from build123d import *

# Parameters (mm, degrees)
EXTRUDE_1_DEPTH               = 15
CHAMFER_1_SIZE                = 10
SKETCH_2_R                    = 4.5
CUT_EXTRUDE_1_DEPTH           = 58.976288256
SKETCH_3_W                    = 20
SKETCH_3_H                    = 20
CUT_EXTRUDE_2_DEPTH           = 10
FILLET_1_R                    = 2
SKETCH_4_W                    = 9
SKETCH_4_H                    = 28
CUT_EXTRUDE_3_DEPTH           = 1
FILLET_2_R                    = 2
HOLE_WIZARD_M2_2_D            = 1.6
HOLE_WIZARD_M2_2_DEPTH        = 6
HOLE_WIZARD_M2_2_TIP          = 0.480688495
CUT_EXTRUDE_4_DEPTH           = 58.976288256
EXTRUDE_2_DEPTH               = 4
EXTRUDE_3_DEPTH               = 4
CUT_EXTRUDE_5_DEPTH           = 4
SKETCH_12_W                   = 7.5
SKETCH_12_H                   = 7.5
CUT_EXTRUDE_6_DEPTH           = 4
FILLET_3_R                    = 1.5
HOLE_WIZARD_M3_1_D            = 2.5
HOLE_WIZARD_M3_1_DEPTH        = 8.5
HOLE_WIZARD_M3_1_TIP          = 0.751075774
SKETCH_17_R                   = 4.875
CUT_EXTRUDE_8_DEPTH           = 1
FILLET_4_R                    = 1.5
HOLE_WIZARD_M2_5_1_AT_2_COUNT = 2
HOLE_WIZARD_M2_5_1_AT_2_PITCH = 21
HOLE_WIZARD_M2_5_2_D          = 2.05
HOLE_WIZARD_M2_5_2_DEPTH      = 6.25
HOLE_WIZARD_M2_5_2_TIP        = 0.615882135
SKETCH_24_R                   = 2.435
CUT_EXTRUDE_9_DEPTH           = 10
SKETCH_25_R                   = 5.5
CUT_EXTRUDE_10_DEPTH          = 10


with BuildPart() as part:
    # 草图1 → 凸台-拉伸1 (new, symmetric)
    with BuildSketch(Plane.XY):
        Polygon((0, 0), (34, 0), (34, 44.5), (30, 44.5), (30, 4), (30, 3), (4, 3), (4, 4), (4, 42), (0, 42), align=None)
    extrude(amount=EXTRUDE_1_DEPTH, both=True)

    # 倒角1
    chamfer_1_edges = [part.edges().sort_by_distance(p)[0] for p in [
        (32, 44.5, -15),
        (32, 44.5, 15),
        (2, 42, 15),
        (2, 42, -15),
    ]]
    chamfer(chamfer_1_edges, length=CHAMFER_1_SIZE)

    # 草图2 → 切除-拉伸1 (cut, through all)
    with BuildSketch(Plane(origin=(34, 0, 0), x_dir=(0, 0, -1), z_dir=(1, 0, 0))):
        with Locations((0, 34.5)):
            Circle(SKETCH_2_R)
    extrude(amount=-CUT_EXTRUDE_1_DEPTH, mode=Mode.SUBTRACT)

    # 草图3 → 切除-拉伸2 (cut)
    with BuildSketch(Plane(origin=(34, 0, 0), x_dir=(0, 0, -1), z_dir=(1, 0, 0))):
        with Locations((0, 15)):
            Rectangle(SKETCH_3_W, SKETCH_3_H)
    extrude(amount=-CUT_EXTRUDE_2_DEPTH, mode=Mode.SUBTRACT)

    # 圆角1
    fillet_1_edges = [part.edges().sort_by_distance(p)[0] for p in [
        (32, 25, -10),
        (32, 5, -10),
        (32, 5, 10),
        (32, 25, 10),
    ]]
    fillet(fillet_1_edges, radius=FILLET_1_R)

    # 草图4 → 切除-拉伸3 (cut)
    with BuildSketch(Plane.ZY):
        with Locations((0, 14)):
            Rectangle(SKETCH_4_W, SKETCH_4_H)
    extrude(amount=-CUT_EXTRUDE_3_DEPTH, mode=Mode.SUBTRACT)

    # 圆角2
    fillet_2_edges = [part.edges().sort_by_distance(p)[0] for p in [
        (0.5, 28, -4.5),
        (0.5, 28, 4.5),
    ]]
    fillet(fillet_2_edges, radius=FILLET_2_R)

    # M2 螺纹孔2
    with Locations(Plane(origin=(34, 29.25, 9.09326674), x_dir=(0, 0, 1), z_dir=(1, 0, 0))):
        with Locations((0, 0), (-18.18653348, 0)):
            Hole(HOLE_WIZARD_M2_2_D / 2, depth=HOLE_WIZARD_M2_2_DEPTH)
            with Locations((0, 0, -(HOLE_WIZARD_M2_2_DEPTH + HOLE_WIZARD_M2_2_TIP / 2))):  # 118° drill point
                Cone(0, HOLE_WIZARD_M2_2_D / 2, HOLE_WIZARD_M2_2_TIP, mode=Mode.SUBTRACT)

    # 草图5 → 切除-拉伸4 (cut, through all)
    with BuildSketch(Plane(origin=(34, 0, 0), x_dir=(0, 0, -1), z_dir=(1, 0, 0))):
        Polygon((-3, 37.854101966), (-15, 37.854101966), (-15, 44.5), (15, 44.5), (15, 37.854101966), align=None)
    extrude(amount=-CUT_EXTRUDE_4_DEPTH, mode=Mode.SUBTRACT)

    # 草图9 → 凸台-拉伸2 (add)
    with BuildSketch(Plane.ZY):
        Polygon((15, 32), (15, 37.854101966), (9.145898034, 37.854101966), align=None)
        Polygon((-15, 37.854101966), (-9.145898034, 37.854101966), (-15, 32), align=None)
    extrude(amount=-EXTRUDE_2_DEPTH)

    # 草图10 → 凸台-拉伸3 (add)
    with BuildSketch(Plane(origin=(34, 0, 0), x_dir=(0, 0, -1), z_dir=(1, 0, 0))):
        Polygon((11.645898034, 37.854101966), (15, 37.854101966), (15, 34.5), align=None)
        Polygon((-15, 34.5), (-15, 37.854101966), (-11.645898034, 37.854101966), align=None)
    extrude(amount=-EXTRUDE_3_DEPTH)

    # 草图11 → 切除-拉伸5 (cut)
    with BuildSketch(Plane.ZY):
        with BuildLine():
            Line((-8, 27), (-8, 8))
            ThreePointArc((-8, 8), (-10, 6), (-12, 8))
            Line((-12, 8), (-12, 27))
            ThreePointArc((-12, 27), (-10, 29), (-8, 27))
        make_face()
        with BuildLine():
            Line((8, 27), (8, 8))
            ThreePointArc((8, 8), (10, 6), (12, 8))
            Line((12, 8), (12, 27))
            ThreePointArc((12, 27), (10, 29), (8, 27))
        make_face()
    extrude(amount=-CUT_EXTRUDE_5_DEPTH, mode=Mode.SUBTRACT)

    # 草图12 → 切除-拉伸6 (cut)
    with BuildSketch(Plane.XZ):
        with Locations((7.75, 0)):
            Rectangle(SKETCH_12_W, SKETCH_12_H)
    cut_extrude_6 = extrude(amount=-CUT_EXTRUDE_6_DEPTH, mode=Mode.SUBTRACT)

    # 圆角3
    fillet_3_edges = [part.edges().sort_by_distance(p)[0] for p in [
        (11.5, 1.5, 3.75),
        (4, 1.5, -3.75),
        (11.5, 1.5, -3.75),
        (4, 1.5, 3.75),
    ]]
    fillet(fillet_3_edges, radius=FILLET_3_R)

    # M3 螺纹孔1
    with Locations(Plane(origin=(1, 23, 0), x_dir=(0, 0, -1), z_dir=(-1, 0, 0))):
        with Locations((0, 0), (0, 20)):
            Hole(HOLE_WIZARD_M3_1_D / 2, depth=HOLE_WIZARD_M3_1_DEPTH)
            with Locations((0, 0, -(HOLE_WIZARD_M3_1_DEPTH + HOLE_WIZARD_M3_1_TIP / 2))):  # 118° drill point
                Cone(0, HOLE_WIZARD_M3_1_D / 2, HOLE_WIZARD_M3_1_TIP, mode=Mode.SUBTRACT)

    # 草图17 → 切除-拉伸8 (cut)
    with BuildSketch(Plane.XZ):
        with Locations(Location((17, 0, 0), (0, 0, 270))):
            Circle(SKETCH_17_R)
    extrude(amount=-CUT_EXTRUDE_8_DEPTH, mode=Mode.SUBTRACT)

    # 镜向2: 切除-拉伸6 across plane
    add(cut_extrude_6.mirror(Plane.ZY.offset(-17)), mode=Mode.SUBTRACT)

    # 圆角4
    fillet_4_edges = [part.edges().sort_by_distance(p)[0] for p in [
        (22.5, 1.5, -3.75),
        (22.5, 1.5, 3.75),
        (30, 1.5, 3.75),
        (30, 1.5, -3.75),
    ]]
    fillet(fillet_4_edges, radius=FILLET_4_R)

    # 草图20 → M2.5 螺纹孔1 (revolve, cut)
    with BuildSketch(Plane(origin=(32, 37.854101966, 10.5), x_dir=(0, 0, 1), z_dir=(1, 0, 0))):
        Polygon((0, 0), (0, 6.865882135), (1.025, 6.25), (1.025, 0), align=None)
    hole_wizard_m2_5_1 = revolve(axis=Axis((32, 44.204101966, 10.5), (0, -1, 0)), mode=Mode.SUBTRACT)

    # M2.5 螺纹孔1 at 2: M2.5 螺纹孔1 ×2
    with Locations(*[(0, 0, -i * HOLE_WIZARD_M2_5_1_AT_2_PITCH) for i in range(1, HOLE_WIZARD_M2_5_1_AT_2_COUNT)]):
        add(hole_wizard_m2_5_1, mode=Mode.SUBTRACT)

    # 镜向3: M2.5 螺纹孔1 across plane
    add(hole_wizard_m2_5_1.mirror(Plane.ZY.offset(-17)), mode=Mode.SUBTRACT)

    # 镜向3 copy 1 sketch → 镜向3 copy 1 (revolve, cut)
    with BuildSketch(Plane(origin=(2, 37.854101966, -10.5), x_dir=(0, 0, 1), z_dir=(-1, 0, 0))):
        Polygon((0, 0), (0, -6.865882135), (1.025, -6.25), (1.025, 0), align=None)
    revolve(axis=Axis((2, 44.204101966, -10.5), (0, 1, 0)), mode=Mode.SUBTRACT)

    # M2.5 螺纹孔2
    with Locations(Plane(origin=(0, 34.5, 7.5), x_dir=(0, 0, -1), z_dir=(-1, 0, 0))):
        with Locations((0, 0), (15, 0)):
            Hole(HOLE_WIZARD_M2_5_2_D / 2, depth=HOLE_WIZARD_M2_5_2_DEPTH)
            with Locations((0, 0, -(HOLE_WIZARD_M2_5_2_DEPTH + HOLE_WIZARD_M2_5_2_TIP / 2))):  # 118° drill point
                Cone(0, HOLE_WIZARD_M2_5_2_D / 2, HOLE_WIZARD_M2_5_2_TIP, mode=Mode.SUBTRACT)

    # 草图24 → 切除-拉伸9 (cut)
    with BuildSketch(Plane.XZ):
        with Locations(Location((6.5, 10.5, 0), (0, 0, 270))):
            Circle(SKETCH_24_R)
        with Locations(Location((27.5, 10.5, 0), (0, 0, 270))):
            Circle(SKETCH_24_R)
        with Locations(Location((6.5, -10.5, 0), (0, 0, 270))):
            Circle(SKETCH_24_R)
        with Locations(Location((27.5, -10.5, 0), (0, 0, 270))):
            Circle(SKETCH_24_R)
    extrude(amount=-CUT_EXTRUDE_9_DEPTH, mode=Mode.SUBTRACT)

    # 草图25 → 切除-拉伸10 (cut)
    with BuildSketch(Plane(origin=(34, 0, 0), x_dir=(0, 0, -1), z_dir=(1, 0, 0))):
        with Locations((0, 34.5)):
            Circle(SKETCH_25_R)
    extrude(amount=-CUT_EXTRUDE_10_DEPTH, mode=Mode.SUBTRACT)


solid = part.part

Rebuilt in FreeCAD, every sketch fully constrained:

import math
import FreeCAD as App
import Part
import Sketcher

V = App.Vector
Q = App.Units.Quantity


def edges_at(feature, points):
    """Names of the edges that pass closest to the given points."""
    edges = feature.Shape.Edges
    near = lambda p: min(range(len(edges)), key=lambda i: edges[i].distToShape(Part.Vertex(*p))[0])
    return sorted({f"Edge{near(p) + 1}" for p in points})

doc = App.newDocument("Part")
body = doc.addObject("PartDesign::Body", "Body")

sketch1 = body.newObject("Sketcher::SketchObject", "Sketch")
sketch1.AttachmentSupport = (doc.getObject("XY_Plane"), [""])
sketch1.MapMode = "FlatFace"
sketch1.addGeometry([
    Part.LineSegment(V(0, 0, 0), V(34, 0, 0)),
    Part.LineSegment(V(34, 0, 0), V(34, 44.5, 0)),
    Part.LineSegment(V(34, 44.5, 0), V(30, 44.5, 0)),
    Part.LineSegment(V(30, 44.5, 0), V(30, 3, 0)),
    Part.LineSegment(V(30, 3, 0), V(4, 3, 0)),
    Part.LineSegment(V(4, 3, 0), V(4, 42, 0)),
    Part.LineSegment(V(4, 42, 0), V(0, 42, 0)),
    Part.LineSegment(V(0, 42, 0), V(0, 0, 0)),
], False)
sketch1.addConstraint([
    Sketcher.Constraint("Coincident", 0, 2, 1, 1),
    Sketcher.Constraint("Coincident", 1, 2, 2, 1),
    Sketcher.Constraint("Coincident", 2, 2, 3, 1),
    Sketcher.Constraint("Coincident", 3, 2, 4, 1),
    Sketcher.Constraint("Coincident", 4, 2, 5, 1),
    Sketcher.Constraint("Coincident", 5, 2, 6, 1),
    Sketcher.Constraint("Coincident", 6, 2, 7, 1),
    Sketcher.Constraint("Coincident", 7, 2, 0, 1),
    Sketcher.Constraint("Horizontal", 0),
    Sketcher.Constraint("Vertical", 1),
    Sketcher.Constraint("Horizontal", 2),
    Sketcher.Constraint("Vertical", 3),
    Sketcher.Constraint("Horizontal", 4),
    Sketcher.Constraint("Vertical", 5),
    Sketcher.Constraint("Horizontal", 6),
    Sketcher.Constraint("Vertical", 7),
    Sketcher.Constraint("Coincident", 7, 2, -1, 1),
    Sketcher.Constraint("Equal", 2, 6),
    Sketcher.Constraint("DistanceX", 0, 1, 0, 2, Q("34 mm")),
    Sketcher.Constraint("DistanceX", 2, 2, 2, 1, Q("4 mm")),
    Sketcher.Constraint("DistanceY", 5, 1, 5, 2, Q("39 mm")),
    Sketcher.Constraint("DistanceY", 7, 2, 7, 1, Q("42 mm")),
    Sketcher.Constraint("DistanceY", 1, 1, 1, 2, Q("44.5 mm")),
])
pad1 = body.newObject("PartDesign::Pad", "Pad")
pad1.Profile = sketch1
pad1.Length = 30
pad1.Midplane = True
doc.recompute()

chamfer = body.newObject("PartDesign::Chamfer", "Chamfer")
chamfer.Base = (pad1, edges_at(pad1, [
    (32, 44.5, -15),
    (32, 44.5, 15),
    (2, 42, 15),
    (2, 42, -15),
]))
chamfer.Size = 10

sketch2 = body.newObject("Sketcher::SketchObject", "Sketch001")
sketch2.AttachmentSupport = (doc.getObject("YZ_Plane"), [""])
sketch2.MapMode = "FlatFace"
sketch2.AttachmentOffset = App.Placement(V(0, 0, 34), App.Rotation())
sketch2.addGeometry(Part.Circle(V(34.5, 0, 0), V(0, 0, 1), 4.5), False)
sketch2.addConstraint([
    Sketcher.Constraint("PointOnObject", 0, 3, -1),
    Sketcher.Constraint("Diameter", 0, Q("9 mm")),
    Sketcher.Constraint("DistanceX", -1, 1, 0, 3, Q("34.5 mm")),
])
pocket1 = body.newObject("PartDesign::Pocket", "Pocket")
pocket1.Profile = sketch2
pocket1.Type = "ThroughAll"

sketch3 = body.newObject("Sketcher::SketchObject", "Sketch002")
sketch3.AttachmentSupport = (doc.getObject("YZ_Plane"), [""])
sketch3.MapMode = "FlatFace"
sketch3.AttachmentOffset = App.Placement(V(0, 0, 34), App.Rotation())
sketch3.addGeometry([
    Part.LineSegment(V(25, 10, 0), V(5, 10, 0)),
    Part.LineSegment(V(5, 10, 0), V(5, -10, 0)),
    Part.LineSegment(V(5, -10, 0), V(25, -10, 0)),
    Part.LineSegment(V(25, -10, 0), V(25, 10, 0)),
], False)
sketch3.addConstraint([
    Sketcher.Constraint("Coincident", 0, 2, 1, 1),
    Sketcher.Constraint("Coincident", 1, 2, 2, 1),
    Sketcher.Constraint("Coincident", 2, 2, 3, 1),
    Sketcher.Constraint("Coincident", 3, 2, 0, 1),
    Sketcher.Constraint("Horizontal", 0),
    Sketcher.Constraint("Vertical", 1),
    Sketcher.Constraint("Horizontal", 2),
    Sketcher.Constraint("Vertical", 3),
    Sketcher.Constraint("Equal", 2, 1),
    Sketcher.Constraint("DistanceX", 0, 2, 0, 1, Q("20 mm")),
    Sketcher.Constraint("DistanceX", -1, 1, 0, 2, Q("5 mm")),
    Sketcher.Constraint("DistanceY", -1, 1, 0, 2, Q("10 mm")),
])
pocket2 = body.newObject("PartDesign::Pocket", "Pocket001")
pocket2.Profile = sketch3
pocket2.Length = 10
doc.recompute()

fillet = body.newObject("PartDesign::Fillet", "Fillet")
fillet.Base = (pocket2, edges_at(pocket2, [
    (32, 25, -10),
    (32, 5, -10),
    (32, 5, 10),
    (32, 25, 10),
]))
fillet.Radius = 2

sketch4 = body.newObject("Sketcher::SketchObject", "Sketch003")
sketch4.AttachmentSupport = (doc.getObject("YZ_Plane"), [""])
sketch4.MapMode = "FlatFace"
sketch4.addGeometry([
    Part.LineSegment(V(28, -4.5, 0), V(0, -4.5, 0)),
    Part.LineSegment(V(0, -4.5, 0), V(0, 4.5, 0)),
    Part.LineSegment(V(0, 4.5, 0), V(28, 4.5, 0)),
    Part.LineSegment(V(28, 4.5, 0), V(28, -4.5, 0)),
], False)
sketch4.addConstraint([
    Sketcher.Constraint("Coincident", 0, 2, 1, 1),
    Sketcher.Constraint("Coincident", 1, 2, 2, 1),
    Sketcher.Constraint("Coincident", 2, 2, 3, 1),
    Sketcher.Constraint("Coincident", 3, 2, 0, 1),
    Sketcher.Constraint("Horizontal", 0),
    Sketcher.Constraint("Vertical", 1),
    Sketcher.Constraint("Horizontal", 2),
    Sketcher.Constraint("Vertical", 3),
    Sketcher.Constraint("Symmetric", 0, 2, 1, 2, -1, 1),
    Sketcher.Constraint("DistanceX", 0, 2, 0, 1, Q("28 mm")),
    Sketcher.Constraint("DistanceY", 1, 1, 1, 2, Q("9 mm")),
])
pocket3 = body.newObject("PartDesign::Pocket", "Pocket002")
pocket3.Profile = sketch4
pocket3.Length = 1
pocket3.Reversed = True
doc.recompute()

fillet2 = body.newObject("PartDesign::Fillet", "Fillet001")
fillet2.Base = (pocket3, edges_at(pocket3, [(0.5, 28, -4.5), (0.5, 28, 4.5)]))
fillet2.Radius = 2

sketch5 = body.newObject("Sketcher::SketchObject", "Sketch004")
sketch5.AttachmentSupport = (doc.getObject("YZ_Plane"), [""])
sketch5.MapMode = "FlatFace"
sketch5.AttachmentOffset = App.Placement(V(0, 0, 34), App.Rotation())
sketch5.addGeometry([
    Part.Circle(V(29.25, 9.093267, 0), V(0, 0, 1), 0.8),
    Part.Circle(V(29.25, -9.093267, 0), V(0, 0, 1), 0.8),
], False)
sketch5.addConstraint([
    Sketcher.Constraint("Equal", 0, 1),
    Sketcher.Constraint("Symmetric", 0, 3, 1, 3, -1),
    Sketcher.Constraint("Diameter", 0, Q("1.6 mm")),
    Sketcher.Constraint("DistanceX", -1, 1, 0, 3, Q("29.25 mm")),
    Sketcher.Constraint("DistanceY", -1, 1, 0, 3, Q("9.093267 mm")),
])
doc.recompute()
hole = body.newObject("PartDesign::Hole", "Hole")
hole.Profile = sketch5
hole.ThreadType = "None"
hole.Diameter = 1.6
hole.DepthType = "Dimension"
hole.Depth = 6
hole.DrillPoint = "Angled"
hole.DrillPointAngle = 118

sketch6 = body.newObject("Sketcher::SketchObject", "Sketch005")
sketch6.AttachmentSupport = (doc.getObject("YZ_Plane"), [""])
sketch6.MapMode = "FlatFace"
sketch6.AttachmentOffset = App.Placement(V(0, 0, 34), App.Rotation())
sketch6.addGeometry([
    Part.LineSegment(V(37.854102, 15, 0), V(37.854102, -15, 0)),
    Part.LineSegment(V(37.854102, -15, 0), V(44.5, -15, 0)),
    Part.LineSegment(V(44.5, -15, 0), V(44.5, 15, 0)),
    Part.LineSegment(V(44.5, 15, 0), V(37.854102, 15, 0)),
], False)
sketch6.addConstraint([
    Sketcher.Constraint("Coincident", 0, 2, 1, 1),
    Sketcher.Constraint("Coincident", 1, 2, 2, 1),
    Sketcher.Constraint("Coincident", 2, 2, 3, 1),
    Sketcher.Constraint("Coincident", 3, 2, 0, 1),
    Sketcher.Constraint("Vertical", 0),
    Sketcher.Constraint("Horizontal", 1),
    Sketcher.Constraint("Vertical", 2),
    Sketcher.Constraint("Horizontal", 3),
    Sketcher.Constraint("DistanceY", 0, 2, 0, 1, Q("30 mm")),
    Sketcher.Constraint("DistanceY", 0, 2, -1, 1, Q("15 mm")),
    Sketcher.Constraint("DistanceX", -1, 1, 1, 2, Q("44.5 mm")),
    Sketcher.Constraint("DistanceX", 1, 1, 1, 2, Q("6.645898 mm")),
])
pocket4 = body.newObject("PartDesign::Pocket", "Pocket003")
pocket4.Profile = sketch6
pocket4.Type = "ThroughAll"

sketch7 = body.newObject("Sketcher::SketchObject", "Sketch006")
sketch7.AttachmentSupport = (doc.getObject("YZ_Plane"), [""])
sketch7.MapMode = "FlatFace"
sketch7.addGeometry([
    Part.LineSegment(V(32, 15, 0), V(37.854102, 15, 0)),
    Part.LineSegment(V(37.854102, 15, 0), V(37.854102, 9.145898, 0)),
    Part.LineSegment(V(37.854102, 9.145898, 0), V(32, 15, 0)),
    Part.LineSegment(V(37.854102, -9.145898, 0), V(37.854102, -15, 0)),
    Part.LineSegment(V(37.854102, -15, 0), V(32, -15, 0)),
    Part.LineSegment(V(32, -15, 0), V(37.854102, -9.145898, 0)),
], False)
sketch7.addConstraint([
    Sketcher.Constraint("Coincident", 0, 2, 1, 1),
    Sketcher.Constraint("Coincident", 1, 2, 2, 1),
    Sketcher.Constraint("Coincident", 2, 2, 0, 1),
    Sketcher.Constraint("Coincident", 3, 2, 4, 1),
    Sketcher.Constraint("Coincident", 4, 2, 5, 1),
    Sketcher.Constraint("Coincident", 5, 2, 3, 1),
    Sketcher.Constraint("Horizontal", 0),
    Sketcher.Constraint("Vertical", 1),
    Sketcher.Constraint("Vertical", 3),
    Sketcher.Constraint("Horizontal", 4),
    Sketcher.Constraint("Symmetric", 0, 2, 3, 2, -1),
    Sketcher.Constraint("Perpendicular", 2, 5),
    Sketcher.Constraint("Vertical", 2, 2, 4, 2),
    Sketcher.Constraint("Equal", 4, 1),
    Sketcher.Constraint("DistanceY", -1, 1, 0, 2, Q("15 mm")),
    Sketcher.Constraint("DistanceX", -1, 1, 2, 2, Q("32 mm")),
    Sketcher.Constraint("DistanceX", 0, 1, 0, 2, Q("5.854102 mm")),
])
pad2 = body.newObject("PartDesign::Pad", "Pad001")
pad2.Profile = sketch7
pad2.Length = 4

sketch8 = body.newObject("Sketcher::SketchObject", "Sketch007")
sketch8.AttachmentSupport = (doc.getObject("YZ_Plane"), [""])
sketch8.MapMode = "FlatFace"
sketch8.AttachmentOffset = App.Placement(V(0, 0, 34), App.Rotation())
sketch8.addGeometry([
    Part.LineSegment(V(37.854102, -15, 0), V(37.854102, -11.645898, 0)),
    Part.LineSegment(V(37.854102, -11.645898, 0), V(34.5, -15, 0)),
    Part.LineSegment(V(34.5, -15, 0), V(37.854102, -15, 0)),
    Part.LineSegment(V(37.854102, 15, 0), V(34.5, 15, 0)),
    Part.LineSegment(V(34.5, 15, 0), V(37.854102, 11.645898, 0)),
    Part.LineSegment(V(37.854102, 11.645898, 0), V(37.854102, 15, 0)),
], False)
sketch8.addConstraint([
    Sketcher.Constraint("Coincident", 0, 2, 1, 1),
    Sketcher.Constraint("Coincident", 1, 2, 2, 1),
    Sketcher.Constraint("Coincident", 2, 2, 0, 1),
    Sketcher.Constraint("Coincident", 3, 2, 4, 1),
    Sketcher.Constraint("Coincident", 4, 2, 5, 1),
    Sketcher.Constraint("Coincident", 5, 2, 3, 1),
    Sketcher.Constraint("Vertical", 0),
    Sketcher.Constraint("Horizontal", 2),
    Sketcher.Constraint("Horizontal", 3),
    Sketcher.Constraint("Vertical", 5),
    Sketcher.Constraint("Symmetric", 1, 2, 3, 2, -1),
    Sketcher.Constraint("Symmetric", 0, 2, 4, 2, -1),
    Sketcher.Constraint("Perpendicular", 1, 4),
    Sketcher.Constraint("DistanceY", 1, 2, -1, 1, Q("15 mm")),
    Sketcher.Constraint("DistanceX", -1, 1, 1, 2, Q("34.5 mm")),
    Sketcher.Constraint("DistanceX", 2, 1, 2, 2, Q("3.354102 mm")),
])
pad3 = body.newObject("PartDesign::Pad", "Pad002")
pad3.Profile = sketch8
pad3.Length = 4
pad3.Reversed = True

sketch9 = body.newObject("Sketcher::SketchObject", "Sketch008")
sketch9.AttachmentSupport = (doc.getObject("YZ_Plane"), [""])
sketch9.MapMode = "FlatFace"
sketch9.addGeometry([
    Part.LineSegment(V(8, -8, 0), V(27, -8, 0)),
    Part.ArcOfCircle(Part.Circle(V(27, -10, 0), V(0, 0, 1), 2), math.radians(-90), math.radians(90)),
    Part.LineSegment(V(27, -12, 0), V(8, -12, 0)),
    Part.ArcOfCircle(Part.Circle(V(8, -10, 0), V(0, 0, 1), 2), math.radians(90), math.radians(270)),
    Part.LineSegment(V(27, 8, 0), V(8, 8, 0)),
    Part.ArcOfCircle(Part.Circle(V(8, 10, 0), V(0, 0, 1), 2), math.radians(90), math.radians(270)),
    Part.LineSegment(V(8, 12, 0), V(27, 12, 0)),
    Part.ArcOfCircle(Part.Circle(V(27, 10, 0), V(0, 0, 1), 2), math.radians(-90), math.radians(90)),
], False)
sketch9.addConstraint([
    Sketcher.Constraint("Tangent", 0, 2, 1, 2),
    Sketcher.Constraint("Tangent", 1, 1, 2, 1),
    Sketcher.Constraint("Tangent", 2, 2, 3, 2),
    Sketcher.Constraint("Tangent", 3, 1, 0, 1),
    Sketcher.Constraint("Tangent", 4, 2, 5, 2),
    Sketcher.Constraint("Tangent", 5, 1, 6, 1),
    Sketcher.Constraint("Tangent", 6, 2, 7, 2),
    Sketcher.Constraint("Tangent", 7, 1, 4, 1),
    Sketcher.Constraint("Horizontal", 0),
    Sketcher.Constraint("Horizontal", 2),
    Sketcher.Constraint("Horizontal", 4),
    Sketcher.Constraint("Horizontal", 6),
    Sketcher.Constraint("Equal", 3, 5),
    Sketcher.Constraint("Symmetric", 3, 3, 5, 3, -1),
    Sketcher.Constraint("Vertical", 1, 3, 7, 3),
    Sketcher.Constraint("Radius", 1, Q("2 mm")),
    Sketcher.Constraint("DistanceX", 0, 1, 0, 2, Q("19 mm")),
    Sketcher.Constraint("DistanceX", -1, 1, 1, 3, Q("27 mm")),
    Sketcher.Constraint("DistanceY", 1, 3, -1, 1, Q("10 mm")),
])
pocket5 = body.newObject("PartDesign::Pocket", "Pocket004")
pocket5.Profile = sketch9
pocket5.Length = 4
pocket5.Reversed = True

sketch10 = body.newObject("Sketcher::SketchObject", "Sketch009")
sketch10.AttachmentSupport = (doc.getObject("XZ_Plane"), [""])
sketch10.MapMode = "FlatFace"
sketch10.addGeometry([
    Part.LineSegment(V(4, 3.75, 0), V(4, -3.75, 0)),
    Part.LineSegment(V(4, -3.75, 0), V(11.5, -3.75, 0)),
    Part.LineSegment(V(11.5, -3.75, 0), V(11.5, 3.75, 0)),
    Part.LineSegment(V(11.5, 3.75, 0), V(4, 3.75, 0)),
], False)
sketch10.addConstraint([
    Sketcher.Constraint("Coincident", 0, 2, 1, 1),
    Sketcher.Constraint("Coincident", 1, 2, 2, 1),
    Sketcher.Constraint("Coincident", 2, 2, 3, 1),
    Sketcher.Constraint("Coincident", 3, 2, 0, 1),
    Sketcher.Constraint("Vertical", 0),
    Sketcher.Constraint("Horizontal", 1),
    Sketcher.Constraint("Vertical", 2),
    Sketcher.Constraint("Horizontal", 3),
    Sketcher.Constraint("Equal", 3, 0),
    Sketcher.Constraint("DistanceX", 1, 1, 1, 2, Q("7.5 mm")),
    Sketcher.Constraint("DistanceX", -1, 1, 0, 2, Q("4 mm")),
    Sketcher.Constraint("DistanceY", 0, 2, -1, 1, Q("3.75 mm")),
])
pocket6 = body.newObject("PartDesign::Pocket", "Pocket005")
pocket6.Profile = sketch10
pocket6.Length = 4
doc.recompute()

fillet3 = body.newObject("PartDesign::Fillet", "Fillet002")
fillet3.Base = (pocket6, edges_at(pocket6, [
    (11.5, 1.5, 3.75),
    (4, 1.5, -3.75),
    (11.5, 1.5, -3.75),
    (4, 1.5, 3.75),
]))
fillet3.Radius = 1.5

sketch11 = body.newObject("Sketcher::SketchObject", "Sketch010")
sketch11.AttachmentSupport = (doc.getObject("YZ_Plane"), [""])
sketch11.MapMode = "FlatFace"
sketch11.AttachmentOffset = App.Placement(V(0, 0, 1), App.Rotation())
sketch11.addGeometry([
    Part.Circle(V(23, 0, 0), V(0, 0, 1), 1.25),
    Part.Circle(V(3, 0, 0), V(0, 0, 1), 1.25),
], False)
sketch11.addConstraint([
    Sketcher.Constraint("Equal", 0, 1),
    Sketcher.Constraint("PointOnObject", 0, 3, -1),
    Sketcher.Constraint("PointOnObject", 1, 3, -1),
    Sketcher.Constraint("Diameter", 0, Q("2.5 mm")),
    Sketcher.Constraint("DistanceX", -1, 1, 0, 3, Q("23 mm")),
    Sketcher.Constraint("DistanceX", -1, 1, 1, 3, Q("3 mm")),
])
doc.recompute()
hole2 = body.newObject("PartDesign::Hole", "Hole001")
hole2.Profile = sketch11
hole2.ThreadType = "None"
hole2.Diameter = 2.5
hole2.DepthType = "Dimension"
hole2.Depth = 8.5
hole2.DrillPoint = "Angled"
hole2.DrillPointAngle = 118
hole2.Reversed = True

sketch12 = body.newObject("Sketcher::SketchObject", "Sketch011")
sketch12.AttachmentSupport = (doc.getObject("XZ_Plane"), [""])
sketch12.MapMode = "FlatFace"
sketch12.addGeometry(Part.Circle(V(17, 0, 0), V(0, 0, 1), 4.875), False)
sketch12.addConstraint([
    Sketcher.Constraint("PointOnObject", 0, 3, -1),
    Sketcher.Constraint("Diameter", 0, Q("9.75 mm")),
    Sketcher.Constraint("DistanceX", -1, 1, 0, 3, Q("17 mm")),
])
pocket7 = body.newObject("PartDesign::Pocket", "Pocket006")
pocket7.Profile = sketch12
pocket7.Length = 1
doc.recompute()

datumplane = body.newObject("PartDesign::Plane", "DatumPlane")
datumplane.AttachmentSupport = (doc.getObject("YZ_Plane"), [""])
datumplane.MapMode = "FlatFace"
datumplane.AttachmentOffset = App.Placement(V(0, 0, 17), App.Rotation())
mirrored = body.newObject("PartDesign::Mirrored", "Mirrored")
mirrored.Originals = [pocket6]
mirrored.MirrorPlane = (datumplane, [""])
body.Tip = mirrored
doc.recompute()

fillet4 = body.newObject("PartDesign::Fillet", "Fillet003")
fillet4.Base = (mirrored, edges_at(mirrored, [
    (22.5, 1.5, -3.75),
    (22.5, 1.5, 3.75),
    (30, 1.5, 3.75),
    (30, 1.5, -3.75),
]))
fillet4.Radius = 1.5

sketch13 = body.newObject("Sketcher::SketchObject", "Sketch012")
sketch13.AttachmentSupport = (doc.getObject("YZ_Plane"), [""])
sketch13.MapMode = "FlatFace"
sketch13.AttachmentOffset = App.Placement(V(0, 0, 32), App.Rotation())
sketch13.addGeometry([
    Part.LineSegment(V(30.98822, 10.5, 0), V(37.854102, 10.5, 0)),
    Part.LineSegment(V(37.854102, 10.5, 0), V(37.854102, 11.525, 0)),
    Part.LineSegment(V(37.854102, 11.525, 0), V(31.604102, 11.525, 0)),
    Part.LineSegment(V(31.604102, 11.525, 0), V(30.98822, 10.5, 0)),
], False)
sketch13.addGeometry(Part.LineSegment(V(37.854102, 10.5, 0), V(30.98822, 10.5, 0)), True)
sketch13.addConstraint([
    Sketcher.Constraint("Coincident", 0, 2, 1, 1),
    Sketcher.Constraint("Coincident", 1, 2, 2, 1),
    Sketcher.Constraint("Coincident", 2, 2, 3, 1),
    Sketcher.Constraint("Coincident", 3, 2, 0, 1),
    Sketcher.Constraint("Horizontal", 0),
    Sketcher.Constraint("Vertical", 1),
    Sketcher.Constraint("Horizontal", 2),
    Sketcher.Constraint("Horizontal", 4),
    Sketcher.Constraint("Coincident", 4, 1, 0, 2),
    Sketcher.Constraint("Equal", 0, 4),
    Sketcher.Constraint("Angle", 3, Q("-121 deg")),
    Sketcher.Constraint("DistanceX", 2, 2, 2, 1, Q("6.25 mm")),
    Sketcher.Constraint("DistanceY", -1, 1, 0, 2, Q("10.5 mm")),
    Sketcher.Constraint("DistanceY", 1, 1, 1, 2, Q("1.025 mm")),
    Sketcher.Constraint("DistanceX", -1, 1, 0, 2, Q("37.854102 mm")),
])
groove = body.newObject("PartDesign::Groove", "Groove")
groove.Profile = sketch13
groove.ReferenceAxis = (sketch13, ["Axis0"])
groove.Angle = 360
doc.recompute()

linearpattern = body.newObject("PartDesign::LinearPattern", "LinearPattern")
linearpattern.Originals = [groove]
linearpattern.Direction = (doc.getObject("Z_Axis"), [""])
linearpattern.Mode = "offset"
linearpattern.Offset = 21
linearpattern.Occurrences = 2
linearpattern.Reversed = True
body.Tip = linearpattern
doc.recompute()

datumplane2 = body.newObject("PartDesign::Plane", "DatumPlane001")
datumplane2.AttachmentSupport = (doc.getObject("YZ_Plane"), [""])
datumplane2.MapMode = "FlatFace"
datumplane2.AttachmentOffset = App.Placement(V(0, 0, 17), App.Rotation())
mirrored2 = body.newObject("PartDesign::Mirrored", "Mirrored001")
mirrored2.Originals = [groove]
mirrored2.MirrorPlane = (datumplane2, [""])
body.Tip = mirrored2

sketch14 = body.newObject("Sketcher::SketchObject", "Sketch013")
sketch14.AttachmentSupport = (doc.getObject("YZ_Plane"), [""])
sketch14.MapMode = "FlatFace"
sketch14.AttachmentOffset = App.Placement(V(0, 0, 2), App.Rotation())
sketch14.addGeometry([
    Part.LineSegment(V(37.854102, -10.5, 0), V(30.98822, -10.5, 0)),
    Part.LineSegment(V(30.98822, -10.5, 0), V(31.604102, -9.475, 0)),
    Part.LineSegment(V(31.604102, -9.475, 0), V(37.854102, -9.475, 0)),
    Part.LineSegment(V(37.854102, -9.475, 0), V(37.854102, -10.5, 0)),
], False)
sketch14.addGeometry(Part.LineSegment(V(30.98822, -10.5, 0), V(37.854102, -10.5, 0)), True)
sketch14.addConstraint([
    Sketcher.Constraint("Coincident", 0, 2, 1, 1),
    Sketcher.Constraint("Coincident", 1, 2, 2, 1),
    Sketcher.Constraint("Coincident", 2, 2, 3, 1),
    Sketcher.Constraint("Coincident", 3, 2, 0, 1),
    Sketcher.Constraint("Horizontal", 0),
    Sketcher.Constraint("Horizontal", 2),
    Sketcher.Constraint("Vertical", 3),
    Sketcher.Constraint("Horizontal", 4),
    Sketcher.Constraint("Coincident", 4, 1, 0, 2),
    Sketcher.Constraint("Vertical", 2, 2, 4, 2),
    Sketcher.Constraint("Angle", 1, Q("59 deg")),
    Sketcher.Constraint("DistanceX", 2, 1, 2, 2, Q("6.25 mm")),
    Sketcher.Constraint("DistanceY", 0, 2, -1, 1, Q("10.5 mm")),
    Sketcher.Constraint("DistanceY", 3, 2, 3, 1, Q("1.025 mm")),
    Sketcher.Constraint("DistanceX", -1, 1, 1, 2, Q("31.604102 mm")),
])
groove2 = body.newObject("PartDesign::Groove", "Groove001")
groove2.Profile = sketch14
groove2.ReferenceAxis = (sketch14, ["Axis0"])
groove2.Angle = 360

sketch15 = body.newObject("Sketcher::SketchObject", "Sketch014")
sketch15.AttachmentSupport = (doc.getObject("YZ_Plane"), [""])
sketch15.MapMode = "FlatFace"
sketch15.addGeometry([
    Part.Circle(V(34.5, 7.5, 0), V(0, 0, 1), 1.025),
    Part.Circle(V(34.5, -7.5, 0), V(0, 0, 1), 1.025),
], False)
sketch15.addConstraint([
    Sketcher.Constraint("Equal", 0, 1),
    Sketcher.Constraint("Symmetric", 0, 3, 1, 3, -1),
    Sketcher.Constraint("Diameter", 0, Q("2.05 mm")),
    Sketcher.Constraint("DistanceY", 1, 3, 0, 3, Q("15 mm")),
    Sketcher.Constraint("DistanceX", -1, 1, 0, 3, Q("34.5 mm")),
])
doc.recompute()
hole3 = body.newObject("PartDesign::Hole", "Hole002")
hole3.Profile = sketch15
hole3.ThreadType = "None"
hole3.Diameter = 2.05
hole3.DepthType = "Dimension"
hole3.Depth = 6.25
hole3.DrillPoint = "Angled"
hole3.DrillPointAngle = 118
hole3.Reversed = True

sketch16 = body.newObject("Sketcher::SketchObject", "Sketch015")
sketch16.AttachmentSupport = (doc.getObject("XZ_Plane"), [""])
sketch16.MapMode = "FlatFace"
sketch16.addGeometry([
    Part.Circle(V(6.5, 10.5, 0), V(0, 0, 1), 2.435),
    Part.Circle(V(27.5, 10.5, 0), V(0, 0, 1), 2.435),
    Part.Circle(V(6.5, -10.5, 0), V(0, 0, 1), 2.435),
    Part.Circle(V(27.5, -10.5, 0), V(0, 0, 1), 2.435),
], False)
sketch16.addConstraint([
    Sketcher.Constraint("Equal", 0, 1),
    Sketcher.Constraint("Equal", 1, 2),
    Sketcher.Constraint("Equal", 2, 3),
    Sketcher.Constraint("Symmetric", 0, 3, 2, 3, -1),
    Sketcher.Constraint("Symmetric", 1, 3, 3, 3, -1),
    Sketcher.Constraint("Horizontal", 0, 3, 1, 3),
    Sketcher.Constraint("Diameter", 0, Q("4.87 mm")),
    Sketcher.Constraint("DistanceX", 0, 3, 1, 3, Q("21 mm")),
    Sketcher.Constraint("DistanceY", 2, 3, 0, 3, Q("21 mm")),
    Sketcher.Constraint("DistanceX", -1, 1, 0, 3, Q("6.5 mm")),
])
pocket8 = body.newObject("PartDesign::Pocket", "Pocket007")
pocket8.Profile = sketch16
pocket8.Length = 10

sketch17 = body.newObject("Sketcher::SketchObject", "Sketch016")
sketch17.AttachmentSupport = (doc.getObject("YZ_Plane"), [""])
sketch17.MapMode = "FlatFace"
sketch17.AttachmentOffset = App.Placement(V(0, 0, 34), App.Rotation())
sketch17.addGeometry(Part.Circle(V(34.5, 0, 0), V(0, 0, 1), 5.5), False)
sketch17.addConstraint([
    Sketcher.Constraint("PointOnObject", 0, 3, -1),
    Sketcher.Constraint("Diameter", 0, Q("11 mm")),
    Sketcher.Constraint("DistanceX", -1, 1, 0, 3, Q("34.5 mm")),
])
pocket9 = body.newObject("PartDesign::Pocket", "Pocket008")
pocket9.Profile = sketch17
pocket9.Length = 10

doc.recompute()
